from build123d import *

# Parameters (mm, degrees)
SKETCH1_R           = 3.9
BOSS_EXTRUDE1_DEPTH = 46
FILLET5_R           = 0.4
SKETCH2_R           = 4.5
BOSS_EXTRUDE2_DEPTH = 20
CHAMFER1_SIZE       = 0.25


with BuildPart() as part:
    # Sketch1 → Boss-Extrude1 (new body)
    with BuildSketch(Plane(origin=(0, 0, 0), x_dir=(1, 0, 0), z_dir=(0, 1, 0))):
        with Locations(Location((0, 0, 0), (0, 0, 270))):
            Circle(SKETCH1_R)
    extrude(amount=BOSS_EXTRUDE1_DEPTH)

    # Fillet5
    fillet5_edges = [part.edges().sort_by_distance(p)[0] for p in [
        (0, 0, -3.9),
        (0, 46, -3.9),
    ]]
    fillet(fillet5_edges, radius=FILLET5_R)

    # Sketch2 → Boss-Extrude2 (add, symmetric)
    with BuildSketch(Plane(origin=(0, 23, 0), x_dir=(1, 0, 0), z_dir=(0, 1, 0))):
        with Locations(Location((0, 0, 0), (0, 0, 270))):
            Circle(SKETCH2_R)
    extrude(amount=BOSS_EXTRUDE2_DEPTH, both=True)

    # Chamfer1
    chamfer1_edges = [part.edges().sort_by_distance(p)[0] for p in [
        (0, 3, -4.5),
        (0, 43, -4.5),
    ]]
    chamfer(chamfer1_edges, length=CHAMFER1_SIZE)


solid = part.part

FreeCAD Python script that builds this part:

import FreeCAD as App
import Part
import Sketcher
Q = App.Units.Quantity


def edges_at(feature, points):
    """Names of the edges that pass closest to the given points."""
    edges = feature.Shape.Edges
    near = lambda p: min(range(len(edges)), key=lambda i: edges[i].distToShape(Part.Vertex(*p))[0])
    return sorted({f"Edge{near(p) + 1}" for p in points})

doc = App.newDocument("Part")
body = doc.addObject("PartDesign::Body", "Body")

# Sketch on XZ plane
sketch1 = doc.addObject("Sketcher::SketchObject", "Sketch")
body.addObject(sketch1)
sketch1.AttachmentSupport = (doc.XZ_Plane, [""])
sketch1.MapMode = "FlatFace"
sketch1.addGeometry(Part.Circle(App.Vector(0, 0, 0), App.Vector(0, 0, 1), 3.9), False)
sketch1.addConstraint([
    Sketcher.Constraint("Coincident", 0, 3, -1, 1),
    Sketcher.Constraint("Diameter", 0, Q("7.8 mm")),
])
pad1 = doc.addObject("PartDesign::Pad", "Pad")
body.addObject(pad1)
pad1.Profile = sketch1
pad1.Length = 46
pad1.Reversed = True
doc.recompute()

fillet = doc.addObject("PartDesign::Fillet", "Fillet")
body.addObject(fillet)
fillet.Base = (pad1, edges_at(pad1, [(0, 0, -3.9), (0, 46, -3.9)]))
fillet.Radius = 0.4

# Sketch on XZ plane
sketch2 = doc.addObject("Sketcher::SketchObject", "Sketch001")
body.addObject(sketch2)
sketch2.AttachmentSupport = (doc.XZ_Plane, [""])
sketch2.MapMode = "FlatFace"
sketch2.AttachmentOffset = App.Placement(App.Vector(0, 0, -23), App.Rotation())
sketch2.addGeometry(Part.Circle(App.Vector(0, 0, 0), App.Vector(0, 0, 1), 4.5), False)
sketch2.addConstraint([
    Sketcher.Constraint("Coincident", 0, 3, -1, 1),
    Sketcher.Constraint("Diameter", 0, Q("9 mm")),
])
pad2 = doc.addObject("PartDesign::Pad", "Pad001")
body.addObject(pad2)
pad2.Profile = sketch2
pad2.Length = 40
pad2.Midplane = True
doc.recompute()

chamfer = doc.addObject("PartDesign::Chamfer", "Chamfer")
body.addObject(chamfer)
chamfer.Base = (pad2, edges_at(pad2, [(0, 3, -4.5), (0, 43, -4.5)]))
chamfer.Size = 0.25

doc.recompute()
